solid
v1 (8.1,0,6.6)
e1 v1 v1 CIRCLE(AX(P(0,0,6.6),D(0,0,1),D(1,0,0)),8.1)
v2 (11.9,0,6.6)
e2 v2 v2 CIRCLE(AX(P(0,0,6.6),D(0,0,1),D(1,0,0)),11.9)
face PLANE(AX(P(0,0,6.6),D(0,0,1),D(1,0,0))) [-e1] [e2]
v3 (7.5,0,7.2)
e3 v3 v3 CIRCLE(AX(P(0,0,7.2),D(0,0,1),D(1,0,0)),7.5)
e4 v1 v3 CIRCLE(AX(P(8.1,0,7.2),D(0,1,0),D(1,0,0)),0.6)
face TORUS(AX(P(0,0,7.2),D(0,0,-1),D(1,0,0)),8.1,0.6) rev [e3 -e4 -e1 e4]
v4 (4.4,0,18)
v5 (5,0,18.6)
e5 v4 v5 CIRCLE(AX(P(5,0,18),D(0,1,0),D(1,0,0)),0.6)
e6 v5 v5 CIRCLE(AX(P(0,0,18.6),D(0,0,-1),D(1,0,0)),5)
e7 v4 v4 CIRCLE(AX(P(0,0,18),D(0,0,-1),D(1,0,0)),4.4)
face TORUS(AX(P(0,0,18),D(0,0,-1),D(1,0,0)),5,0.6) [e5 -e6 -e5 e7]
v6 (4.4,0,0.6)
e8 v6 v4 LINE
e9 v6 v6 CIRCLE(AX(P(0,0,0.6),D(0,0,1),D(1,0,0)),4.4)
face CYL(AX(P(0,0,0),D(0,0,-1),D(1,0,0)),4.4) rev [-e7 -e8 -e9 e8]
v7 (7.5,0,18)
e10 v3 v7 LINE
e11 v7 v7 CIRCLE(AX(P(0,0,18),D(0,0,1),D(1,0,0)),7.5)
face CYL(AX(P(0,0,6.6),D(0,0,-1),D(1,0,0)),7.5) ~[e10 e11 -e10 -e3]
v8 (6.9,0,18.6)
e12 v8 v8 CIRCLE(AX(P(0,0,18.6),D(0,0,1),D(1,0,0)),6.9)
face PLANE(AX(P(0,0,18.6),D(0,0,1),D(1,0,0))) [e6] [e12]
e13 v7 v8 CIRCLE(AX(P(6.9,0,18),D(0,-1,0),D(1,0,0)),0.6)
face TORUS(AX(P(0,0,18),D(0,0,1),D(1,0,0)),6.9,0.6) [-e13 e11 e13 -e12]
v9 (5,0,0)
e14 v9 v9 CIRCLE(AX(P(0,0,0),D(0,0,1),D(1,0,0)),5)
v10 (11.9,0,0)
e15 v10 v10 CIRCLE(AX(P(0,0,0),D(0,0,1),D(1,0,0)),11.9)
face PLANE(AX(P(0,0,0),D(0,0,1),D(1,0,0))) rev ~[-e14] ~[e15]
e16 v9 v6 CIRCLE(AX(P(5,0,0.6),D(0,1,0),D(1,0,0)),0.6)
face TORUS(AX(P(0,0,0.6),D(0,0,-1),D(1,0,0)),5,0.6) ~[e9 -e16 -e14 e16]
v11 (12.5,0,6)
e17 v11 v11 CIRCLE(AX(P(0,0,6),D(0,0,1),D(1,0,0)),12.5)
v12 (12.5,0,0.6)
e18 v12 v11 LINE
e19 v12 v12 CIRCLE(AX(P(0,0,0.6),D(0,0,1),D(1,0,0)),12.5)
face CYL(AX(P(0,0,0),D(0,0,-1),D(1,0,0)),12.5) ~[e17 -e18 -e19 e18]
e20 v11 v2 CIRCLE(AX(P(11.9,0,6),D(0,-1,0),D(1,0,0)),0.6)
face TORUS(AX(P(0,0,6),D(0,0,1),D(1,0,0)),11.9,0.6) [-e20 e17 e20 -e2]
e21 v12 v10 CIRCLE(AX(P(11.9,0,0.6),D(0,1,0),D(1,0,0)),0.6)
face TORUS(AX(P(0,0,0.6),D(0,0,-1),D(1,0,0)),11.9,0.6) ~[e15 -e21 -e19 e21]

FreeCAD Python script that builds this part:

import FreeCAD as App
import Part
import Sketcher
Q = App.Units.Quantity

doc = App.newDocument("Part")
body = doc.addObject("PartDesign::Body", "Body")

sketch1 = doc.addObject("Sketcher::SketchObject", "Sketch")
body.addObject(sketch1)
sketch1.AttachmentSupport = (doc.XY_Plane, [""])
sketch1.MapMode = "FlatFace"
sketch1.addGeometry(Part.Circle(App.Vector(0, 0, 0), App.Vector(0, 0, 1), 12), False)
sketch1.addConstraint(Sketcher.Constraint("Coincident", 0, 3, -1, 1))
sketch1.addConstraint(Sketcher.Constraint("Diameter", 0, Q("25 mm")))
pad1 = doc.addObject("PartDesign::Pad", "Pad")
body.addObject(pad1)
pad1.Profile = sketch1
pad1.Length = 6.6

sketch2 = doc.addObject("Sketcher::SketchObject", "Sketch001")
body.addObject(sketch2)
sketch2.AttachmentSupport = (doc.XY_Plane, [""])
sketch2.MapMode = "FlatFace"
sketch2.AttachmentOffset = App.Placement(App.Vector(0, 0, 6.6), App.Rotation())
sketch2.addGeometry(Part.Circle(App.Vector(0, 0, 0), App.Vector(0, 0, 1), 8), False)
sketch2.addConstraint(Sketcher.Constraint("Coincident", 0, 3, -1, 1))
sketch2.addConstraint(Sketcher.Constraint("Diameter", 0, Q("15 mm")))
pad2 = doc.addObject("PartDesign::Pad", "Pad001")
body.addObject(pad2)
pad2.Profile = sketch2
pad2.Length = 12

sketch3 = doc.addObject("Sketcher::SketchObject", "Sketch002")
body.addObject(sketch3)
sketch3.AttachmentSupport = (doc.XY_Plane, [""])
sketch3.MapMode = "FlatFace"
sketch3.addGeometry(Part.Circle(App.Vector(0, 0, 0), App.Vector(0, 0, 1), 4.4), False)
sketch3.addConstraint(Sketcher.Constraint("Coincident", 0, 3, -1, 1))
sketch3.addConstraint(Sketcher.Constraint("Diameter", 0, Q("8.8 mm")))
pocket1 = doc.addObject("PartDesign::Pocket", "Pocket")
body.addObject(pocket1)
pocket1.Profile = sketch3
pocket1.Type = "ThroughAll"
pocket1.Reversed = True
doc.recompute()

fillet = doc.addObject("PartDesign::Fillet", "Fillet")
body.addObject(fillet)
fillet.Base = (pocket1, ["Edge1"])
fillet.UseAllEdges = True
fillet.Radius = 0.6

doc.recompute()
